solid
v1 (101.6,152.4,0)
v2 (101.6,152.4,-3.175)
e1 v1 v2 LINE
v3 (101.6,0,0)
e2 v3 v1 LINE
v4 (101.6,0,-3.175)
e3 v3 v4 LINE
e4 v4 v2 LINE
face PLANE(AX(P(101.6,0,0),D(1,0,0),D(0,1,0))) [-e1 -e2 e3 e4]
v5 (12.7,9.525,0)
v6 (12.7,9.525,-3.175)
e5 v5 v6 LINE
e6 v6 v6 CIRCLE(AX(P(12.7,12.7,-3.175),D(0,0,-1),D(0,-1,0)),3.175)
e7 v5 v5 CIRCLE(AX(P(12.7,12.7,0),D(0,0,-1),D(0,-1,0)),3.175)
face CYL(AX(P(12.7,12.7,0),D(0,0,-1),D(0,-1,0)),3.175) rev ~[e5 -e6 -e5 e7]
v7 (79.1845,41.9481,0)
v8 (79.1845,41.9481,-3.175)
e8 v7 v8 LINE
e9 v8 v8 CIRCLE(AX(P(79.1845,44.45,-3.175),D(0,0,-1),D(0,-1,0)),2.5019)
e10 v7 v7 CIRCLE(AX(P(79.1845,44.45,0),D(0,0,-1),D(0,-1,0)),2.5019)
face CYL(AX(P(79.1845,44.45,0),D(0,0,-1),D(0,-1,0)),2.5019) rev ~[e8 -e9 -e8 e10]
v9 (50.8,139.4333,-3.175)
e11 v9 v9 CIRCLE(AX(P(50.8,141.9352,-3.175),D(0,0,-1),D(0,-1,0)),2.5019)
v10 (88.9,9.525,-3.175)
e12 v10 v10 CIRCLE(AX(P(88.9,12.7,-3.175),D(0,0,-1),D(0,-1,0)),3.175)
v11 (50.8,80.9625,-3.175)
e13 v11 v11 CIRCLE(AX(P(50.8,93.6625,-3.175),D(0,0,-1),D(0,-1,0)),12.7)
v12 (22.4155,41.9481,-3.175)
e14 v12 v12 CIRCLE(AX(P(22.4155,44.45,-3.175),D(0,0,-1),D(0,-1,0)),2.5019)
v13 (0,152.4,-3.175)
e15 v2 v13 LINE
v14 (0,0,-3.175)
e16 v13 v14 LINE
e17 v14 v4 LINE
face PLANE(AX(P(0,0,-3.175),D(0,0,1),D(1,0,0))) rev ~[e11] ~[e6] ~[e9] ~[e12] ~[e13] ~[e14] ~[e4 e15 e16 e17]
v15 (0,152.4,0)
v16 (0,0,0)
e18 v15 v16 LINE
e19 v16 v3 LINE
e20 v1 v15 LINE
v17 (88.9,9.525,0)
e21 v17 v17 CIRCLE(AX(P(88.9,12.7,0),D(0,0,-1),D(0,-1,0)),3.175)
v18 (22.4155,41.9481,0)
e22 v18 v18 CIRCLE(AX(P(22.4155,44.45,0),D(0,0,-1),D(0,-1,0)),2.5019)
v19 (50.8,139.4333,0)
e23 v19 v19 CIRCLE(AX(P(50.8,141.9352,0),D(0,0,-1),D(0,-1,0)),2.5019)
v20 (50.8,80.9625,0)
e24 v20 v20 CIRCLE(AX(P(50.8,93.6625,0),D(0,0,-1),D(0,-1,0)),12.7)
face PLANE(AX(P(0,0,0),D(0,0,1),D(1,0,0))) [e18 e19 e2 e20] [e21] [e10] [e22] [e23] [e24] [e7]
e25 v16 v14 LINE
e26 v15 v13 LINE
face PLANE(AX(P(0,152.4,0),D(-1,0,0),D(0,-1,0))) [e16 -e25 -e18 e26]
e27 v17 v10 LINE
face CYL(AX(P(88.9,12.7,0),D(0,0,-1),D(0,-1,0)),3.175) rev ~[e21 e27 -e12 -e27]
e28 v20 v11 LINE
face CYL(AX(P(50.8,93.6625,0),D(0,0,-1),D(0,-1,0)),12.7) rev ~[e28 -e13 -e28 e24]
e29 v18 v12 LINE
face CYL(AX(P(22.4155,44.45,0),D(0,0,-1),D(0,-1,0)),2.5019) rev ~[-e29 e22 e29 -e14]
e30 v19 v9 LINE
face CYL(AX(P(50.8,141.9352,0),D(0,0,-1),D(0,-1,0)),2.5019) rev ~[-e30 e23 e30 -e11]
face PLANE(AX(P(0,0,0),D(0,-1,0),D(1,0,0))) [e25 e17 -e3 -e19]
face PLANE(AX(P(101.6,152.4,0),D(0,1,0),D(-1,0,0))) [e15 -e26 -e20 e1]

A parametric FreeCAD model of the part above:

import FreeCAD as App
import Part
import Sketcher
from FreeCAD import Vector
Q = App.Units.Quantity

doc = App.newDocument("Part")
body = doc.addObject("PartDesign::Body", "Body")

# Sketch on XY plane
sketch1 = body.newObject("Sketcher::SketchObject", "Sketch")
sketch1.AttachmentSupport = (doc.getObject("XY_Plane"), [""])
sketch1.MapMode = "FlatFace"
sketch1.addGeometry(Part.LineSegment(Vector(0, 152, 0), Vector(0, 0, 0)), False)
sketch1.addGeometry(Part.LineSegment(Vector(0, 0, 0), Vector(102, 0, 0)), False)
sketch1.addGeometry(Part.LineSegment(Vector(102, 0, 0), Vector(102, 152, 0)), False)
sketch1.addGeometry(Part.LineSegment(Vector(102, 152, 0), Vector(0, 152, 0)), False)
sketch1.addConstraint(Sketcher.Constraint("Coincident", 0, 2, 1, 1))
sketch1.addConstraint(Sketcher.Constraint("Coincident", 1, 2, 2, 1))
sketch1.addConstraint(Sketcher.Constraint("Coincident", 2, 2, 3, 1))
sketch1.addConstraint(Sketcher.Constraint("Coincident", 3, 2, 0, 1))
sketch1.addConstraint(Sketcher.Constraint("Vertical", 0))
sketch1.addConstraint(Sketcher.Constraint("Horizontal", 1))
sketch1.addConstraint(Sketcher.Constraint("Vertical", 2))
sketch1.addConstraint(Sketcher.Constraint("Horizontal", 3))
sketch1.addConstraint(Sketcher.Constraint("Coincident", 0, 2, -1, 1))
sketch1.addConstraint(Sketcher.Constraint("DistanceX", 1, 1, 1, 2, Q("4 in")))
sketch1.addConstraint(Sketcher.Constraint("DistanceY", 0, 2, 0, 1, Q("6 in")))
pad1 = body.newObject("PartDesign::Pad", "Pad")
pad1.Profile = sketch1
pad1.Length = Q("0.125 in")
pad1.Reversed = True

# Sketch on XY plane
sketch2 = body.newObject("Sketcher::SketchObject", "Sketch001")
sketch2.AttachmentSupport = (doc.getObject("XY_Plane"), [""])
sketch2.MapMode = "FlatFace"
sketch2.addGeometry(Part.Circle(Vector(22.4, 44.5, 0), Vector(0, 0, 1), 2.5), False)
sketch2.addGeometry(Part.Circle(Vector(79.2, 44.5, 0), Vector(0, 0, 1), 2.5), False)
sketch2.addGeometry(Part.Circle(Vector(50.8, 141.9, 0), Vector(0, 0, 1), 2.5), False)
sketch2.addConstraint(Sketcher.Constraint("Equal", 0, 1))
sketch2.addConstraint(Sketcher.Constraint("Equal", 1, 2))
sketch2.addConstraint(Sketcher.Constraint("Horizontal", 0, 3, 1, 3))
sketch2.addConstraint(Sketcher.Constraint("Diameter", 0, Q("0.197 in")))
sketch2.addConstraint(Sketcher.Constraint("DistanceX", -1, 1, 2, 3, Q("2 in")))
sketch2.addConstraint(Sketcher.Constraint("DistanceY", -1, 1, 0, 3, Q("1.75 in")))
sketch2.addConstraint(Sketcher.Constraint("DistanceY", -1, 1, 2, 3, Q("5.588 in")))
sketch2.addConstraint(Sketcher.Constraint("DistanceX", 0, 3, 1, 3, Q("2.235 in")))
sketch2.addConstraint(Sketcher.Constraint("DistanceX", -1, 1, 0, 3, Q("0.8825 in")))
doc.recompute()
hole = body.newObject("PartDesign::Hole", "Hole")
hole.Profile = sketch2
hole.ThreadType = "None"
hole.Diameter = Q("0.197 in")
hole.DepthType = "Dimension"
hole.Depth = Q("1 in")
hole.DrillPoint = "Angled"
hole.DrillPointAngle = 118

# Sketch on XY plane
sketch3 = body.newObject("Sketcher::SketchObject", "Sketch002")
sketch3.AttachmentSupport = (doc.getObject("XY_Plane"), [""])
sketch3.MapMode = "FlatFace"
sketch3.addGeometry(Part.Circle(Vector(12.7, 12.7, 0), Vector(0, 0, 1), 3.2), False)
sketch3.addGeometry(Part.Circle(Vector(88.9, 12.7, 0), Vector(0, 0, 1), 3.2), False)
sketch3.addConstraint(Sketcher.Constraint("Equal", 0, 1))
sketch3.addConstraint(Sketcher.Constraint("Horizontal", 0, 3, 1, 3))
sketch3.addConstraint(Sketcher.Constraint("Diameter", 0, Q("0.25 in")))
sketch3.addConstraint(Sketcher.Constraint("DistanceX", 0, 3, 1, 3, Q("3 in")))
sketch3.addConstraint(Sketcher.Constraint("DistanceX", -1, 1, 0, 3, Q("0.5 in")))
sketch3.addConstraint(Sketcher.Constraint("DistanceY", -1, 1, 0, 3, Q("0.5 in")))
doc.recompute()
hole2 = body.newObject("PartDesign::Hole", "Hole001")
hole2.Profile = sketch3
hole2.ThreadType = "None"
hole2.Diameter = Q("0.25 in")
hole2.DepthType = "Dimension"
hole2.Depth = Q("1 in")
hole2.DrillPoint = "Angled"
hole2.DrillPointAngle = 118

# Sketch on XY plane
sketch4 = body.newObject("Sketcher::SketchObject", "Sketch003")
sketch4.AttachmentSupport = (doc.getObject("XY_Plane"), [""])
sketch4.MapMode = "FlatFace"
sketch4.addGeometry(Part.Circle(Vector(51, 94, 0), Vector(0, 0, 1), 13), False)
sketch4.addConstraint(Sketcher.Constraint("Diameter", 0, Q("1 in")))
sketch4.addConstraint(Sketcher.Constraint("DistanceX", -1, 1, 0, 3, Q("2 in")))
sketch4.addConstraint(Sketcher.Constraint("DistanceY", -1, 1, 0, 3, Q("3.6875 in")))
doc.recompute()
hole3 = body.newObject("PartDesign::Hole", "Hole002")
hole3.Profile = sketch4
hole3.ThreadType = "None"
hole3.Diameter = Q("1 in")
hole3.DepthType = "Dimension"
hole3.Depth = Q("1 in")
hole3.DrillPoint = "Angled"
hole3.DrillPointAngle = 118

doc.recompute()
